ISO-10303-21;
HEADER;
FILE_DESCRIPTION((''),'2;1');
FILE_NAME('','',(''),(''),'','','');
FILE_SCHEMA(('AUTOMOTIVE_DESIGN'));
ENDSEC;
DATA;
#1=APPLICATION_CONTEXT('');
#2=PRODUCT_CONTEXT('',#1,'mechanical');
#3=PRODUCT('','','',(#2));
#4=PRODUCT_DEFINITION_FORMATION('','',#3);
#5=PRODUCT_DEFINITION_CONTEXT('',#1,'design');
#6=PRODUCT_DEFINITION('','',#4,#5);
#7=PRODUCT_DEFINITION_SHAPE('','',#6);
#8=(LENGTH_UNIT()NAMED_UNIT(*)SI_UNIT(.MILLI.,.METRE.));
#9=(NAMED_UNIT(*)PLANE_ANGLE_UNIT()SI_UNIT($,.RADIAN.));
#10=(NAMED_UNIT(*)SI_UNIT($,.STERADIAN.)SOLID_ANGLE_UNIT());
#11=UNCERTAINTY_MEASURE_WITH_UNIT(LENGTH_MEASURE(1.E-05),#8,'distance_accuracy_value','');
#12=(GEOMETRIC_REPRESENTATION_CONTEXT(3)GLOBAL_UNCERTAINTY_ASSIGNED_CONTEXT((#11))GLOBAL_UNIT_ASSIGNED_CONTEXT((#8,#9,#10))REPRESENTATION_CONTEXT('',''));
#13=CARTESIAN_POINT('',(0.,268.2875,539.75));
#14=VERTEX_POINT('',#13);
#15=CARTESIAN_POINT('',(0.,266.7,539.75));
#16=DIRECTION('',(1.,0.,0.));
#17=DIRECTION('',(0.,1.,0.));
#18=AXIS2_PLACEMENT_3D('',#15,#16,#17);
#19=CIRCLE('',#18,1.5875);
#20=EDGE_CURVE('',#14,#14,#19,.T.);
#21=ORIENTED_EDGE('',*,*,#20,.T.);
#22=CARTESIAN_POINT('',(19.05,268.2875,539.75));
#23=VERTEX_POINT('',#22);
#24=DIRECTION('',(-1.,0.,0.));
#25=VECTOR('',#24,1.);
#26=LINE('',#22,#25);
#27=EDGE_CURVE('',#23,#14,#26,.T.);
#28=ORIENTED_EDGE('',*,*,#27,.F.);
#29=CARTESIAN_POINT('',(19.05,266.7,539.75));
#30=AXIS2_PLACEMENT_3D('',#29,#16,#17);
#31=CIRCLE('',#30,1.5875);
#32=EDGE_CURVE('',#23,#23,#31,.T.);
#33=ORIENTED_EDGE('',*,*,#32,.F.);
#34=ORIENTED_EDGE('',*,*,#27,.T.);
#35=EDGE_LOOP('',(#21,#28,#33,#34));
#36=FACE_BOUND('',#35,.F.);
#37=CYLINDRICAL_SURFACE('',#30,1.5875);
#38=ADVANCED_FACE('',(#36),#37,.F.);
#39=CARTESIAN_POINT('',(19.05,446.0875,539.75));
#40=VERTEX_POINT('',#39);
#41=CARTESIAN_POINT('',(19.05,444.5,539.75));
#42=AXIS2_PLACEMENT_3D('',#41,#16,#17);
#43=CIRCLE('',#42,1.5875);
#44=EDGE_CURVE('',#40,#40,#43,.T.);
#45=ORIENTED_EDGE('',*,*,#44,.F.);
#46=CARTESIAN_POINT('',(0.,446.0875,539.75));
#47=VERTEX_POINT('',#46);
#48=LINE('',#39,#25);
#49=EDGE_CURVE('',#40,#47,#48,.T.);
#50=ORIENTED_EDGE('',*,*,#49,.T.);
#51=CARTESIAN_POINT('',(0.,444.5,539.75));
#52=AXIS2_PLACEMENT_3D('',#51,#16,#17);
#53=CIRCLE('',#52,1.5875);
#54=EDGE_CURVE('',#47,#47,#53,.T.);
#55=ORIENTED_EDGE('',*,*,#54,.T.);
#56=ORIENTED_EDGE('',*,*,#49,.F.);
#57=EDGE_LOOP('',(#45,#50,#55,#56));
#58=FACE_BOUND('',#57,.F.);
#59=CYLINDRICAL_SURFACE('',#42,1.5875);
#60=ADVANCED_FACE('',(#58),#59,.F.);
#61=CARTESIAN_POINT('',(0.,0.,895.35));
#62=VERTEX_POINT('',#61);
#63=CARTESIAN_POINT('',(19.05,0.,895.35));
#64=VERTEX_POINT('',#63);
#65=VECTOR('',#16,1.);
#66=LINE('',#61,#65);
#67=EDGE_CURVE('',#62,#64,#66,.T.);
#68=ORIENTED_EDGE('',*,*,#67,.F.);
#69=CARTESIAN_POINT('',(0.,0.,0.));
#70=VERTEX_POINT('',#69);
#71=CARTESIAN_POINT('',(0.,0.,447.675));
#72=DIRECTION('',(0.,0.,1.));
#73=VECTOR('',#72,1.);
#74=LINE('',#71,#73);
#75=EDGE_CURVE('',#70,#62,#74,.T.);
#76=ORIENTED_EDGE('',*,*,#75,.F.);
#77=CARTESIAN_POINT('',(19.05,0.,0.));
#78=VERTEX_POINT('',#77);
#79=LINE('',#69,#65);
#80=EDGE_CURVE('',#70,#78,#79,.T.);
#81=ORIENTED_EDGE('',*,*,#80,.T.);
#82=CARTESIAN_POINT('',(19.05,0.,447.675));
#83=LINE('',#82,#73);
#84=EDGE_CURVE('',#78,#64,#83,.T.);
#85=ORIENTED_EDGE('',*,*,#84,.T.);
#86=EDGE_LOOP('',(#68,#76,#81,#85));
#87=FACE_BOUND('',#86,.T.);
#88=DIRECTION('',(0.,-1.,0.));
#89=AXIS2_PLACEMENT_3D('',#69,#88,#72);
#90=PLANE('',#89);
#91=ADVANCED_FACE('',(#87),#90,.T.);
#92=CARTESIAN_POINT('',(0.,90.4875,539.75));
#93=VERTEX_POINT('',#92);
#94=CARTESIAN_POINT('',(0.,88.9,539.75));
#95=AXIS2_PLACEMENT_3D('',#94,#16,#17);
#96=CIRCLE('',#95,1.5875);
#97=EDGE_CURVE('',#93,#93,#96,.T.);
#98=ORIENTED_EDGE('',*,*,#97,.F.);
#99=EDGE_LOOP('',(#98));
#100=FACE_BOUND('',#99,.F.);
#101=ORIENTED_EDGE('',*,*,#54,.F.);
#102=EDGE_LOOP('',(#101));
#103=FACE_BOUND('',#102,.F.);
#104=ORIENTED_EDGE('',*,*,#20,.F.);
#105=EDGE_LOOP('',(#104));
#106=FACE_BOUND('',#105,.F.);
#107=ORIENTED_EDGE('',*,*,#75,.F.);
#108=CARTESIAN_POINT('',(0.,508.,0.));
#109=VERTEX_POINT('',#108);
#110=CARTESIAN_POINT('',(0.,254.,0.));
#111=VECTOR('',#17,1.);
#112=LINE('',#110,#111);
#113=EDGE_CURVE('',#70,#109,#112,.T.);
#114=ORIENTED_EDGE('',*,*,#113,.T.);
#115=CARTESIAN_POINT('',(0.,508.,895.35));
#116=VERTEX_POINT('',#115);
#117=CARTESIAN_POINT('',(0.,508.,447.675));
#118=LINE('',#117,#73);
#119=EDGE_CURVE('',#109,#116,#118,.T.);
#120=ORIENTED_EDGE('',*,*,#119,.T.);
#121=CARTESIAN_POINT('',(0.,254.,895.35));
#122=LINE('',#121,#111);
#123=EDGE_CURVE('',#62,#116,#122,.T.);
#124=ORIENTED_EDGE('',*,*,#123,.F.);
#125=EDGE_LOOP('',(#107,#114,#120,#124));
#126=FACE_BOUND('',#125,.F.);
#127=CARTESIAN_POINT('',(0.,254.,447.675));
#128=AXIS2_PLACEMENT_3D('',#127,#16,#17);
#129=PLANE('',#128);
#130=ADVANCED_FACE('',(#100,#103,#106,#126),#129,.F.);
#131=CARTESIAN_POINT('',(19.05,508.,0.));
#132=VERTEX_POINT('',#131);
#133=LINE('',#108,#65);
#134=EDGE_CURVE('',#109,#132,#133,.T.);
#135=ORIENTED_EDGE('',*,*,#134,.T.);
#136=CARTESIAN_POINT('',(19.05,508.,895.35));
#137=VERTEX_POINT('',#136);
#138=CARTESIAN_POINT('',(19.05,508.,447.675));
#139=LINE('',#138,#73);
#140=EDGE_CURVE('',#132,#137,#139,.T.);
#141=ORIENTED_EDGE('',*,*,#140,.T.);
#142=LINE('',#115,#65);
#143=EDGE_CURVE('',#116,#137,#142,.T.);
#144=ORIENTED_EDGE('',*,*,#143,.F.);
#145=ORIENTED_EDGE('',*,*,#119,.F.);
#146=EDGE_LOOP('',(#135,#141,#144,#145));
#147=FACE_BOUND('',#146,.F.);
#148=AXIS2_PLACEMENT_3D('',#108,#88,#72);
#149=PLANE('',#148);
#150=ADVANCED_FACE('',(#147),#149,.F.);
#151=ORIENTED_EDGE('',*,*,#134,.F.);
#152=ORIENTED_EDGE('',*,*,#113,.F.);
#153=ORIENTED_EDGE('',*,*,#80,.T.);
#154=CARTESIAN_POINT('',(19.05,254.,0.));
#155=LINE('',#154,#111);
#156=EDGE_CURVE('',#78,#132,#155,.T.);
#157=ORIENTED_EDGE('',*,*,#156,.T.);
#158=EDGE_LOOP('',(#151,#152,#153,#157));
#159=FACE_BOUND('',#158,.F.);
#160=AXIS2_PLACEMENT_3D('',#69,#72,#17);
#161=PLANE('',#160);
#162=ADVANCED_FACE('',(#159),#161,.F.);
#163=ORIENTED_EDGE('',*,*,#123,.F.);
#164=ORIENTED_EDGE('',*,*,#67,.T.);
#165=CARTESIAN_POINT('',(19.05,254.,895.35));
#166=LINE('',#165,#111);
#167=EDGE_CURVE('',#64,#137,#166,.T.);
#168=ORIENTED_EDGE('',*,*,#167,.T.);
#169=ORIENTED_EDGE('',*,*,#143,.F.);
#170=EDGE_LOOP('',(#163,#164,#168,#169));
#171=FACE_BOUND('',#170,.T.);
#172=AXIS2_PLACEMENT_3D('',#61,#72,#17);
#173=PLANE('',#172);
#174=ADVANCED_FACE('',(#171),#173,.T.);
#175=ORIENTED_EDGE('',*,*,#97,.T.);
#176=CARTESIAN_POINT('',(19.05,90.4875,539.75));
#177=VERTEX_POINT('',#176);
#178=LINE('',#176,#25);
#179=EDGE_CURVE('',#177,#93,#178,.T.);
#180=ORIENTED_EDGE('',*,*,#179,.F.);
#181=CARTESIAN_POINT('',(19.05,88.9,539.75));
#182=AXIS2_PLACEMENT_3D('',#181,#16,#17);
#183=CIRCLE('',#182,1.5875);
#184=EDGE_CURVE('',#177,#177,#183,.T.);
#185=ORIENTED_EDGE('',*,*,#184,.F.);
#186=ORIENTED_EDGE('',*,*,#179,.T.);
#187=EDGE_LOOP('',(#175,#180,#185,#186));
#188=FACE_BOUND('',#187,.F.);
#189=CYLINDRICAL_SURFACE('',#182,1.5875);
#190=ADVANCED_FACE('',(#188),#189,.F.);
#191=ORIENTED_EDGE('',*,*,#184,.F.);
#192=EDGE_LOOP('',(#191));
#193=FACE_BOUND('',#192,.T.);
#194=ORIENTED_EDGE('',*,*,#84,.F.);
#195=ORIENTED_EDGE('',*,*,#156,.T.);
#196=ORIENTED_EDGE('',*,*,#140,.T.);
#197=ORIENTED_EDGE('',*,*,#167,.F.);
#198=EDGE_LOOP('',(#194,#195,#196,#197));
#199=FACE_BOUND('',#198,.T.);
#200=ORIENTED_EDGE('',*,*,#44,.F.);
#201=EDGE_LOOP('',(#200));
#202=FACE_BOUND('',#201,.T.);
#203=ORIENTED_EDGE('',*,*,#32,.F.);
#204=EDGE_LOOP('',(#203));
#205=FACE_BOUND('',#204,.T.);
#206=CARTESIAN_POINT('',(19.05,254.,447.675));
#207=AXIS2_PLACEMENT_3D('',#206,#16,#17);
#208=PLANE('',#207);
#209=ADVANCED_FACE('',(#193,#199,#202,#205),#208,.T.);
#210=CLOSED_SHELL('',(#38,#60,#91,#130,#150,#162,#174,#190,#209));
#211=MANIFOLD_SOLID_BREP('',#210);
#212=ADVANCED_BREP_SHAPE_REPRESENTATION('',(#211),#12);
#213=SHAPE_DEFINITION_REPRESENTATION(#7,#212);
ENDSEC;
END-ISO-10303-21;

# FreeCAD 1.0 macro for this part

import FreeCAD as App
import Part
import Sketcher
from FreeCAD import Vector
Q = App.Units.Quantity


def add_polygon(sketch, points):
    """Adds a closed chain of lines whose ends are joined by coincident constraints."""
    first, n = sketch.GeometryCount, len(points)
    for a, b in zip(points, points[1:] + points[:1]):
        sketch.addGeometry(Part.LineSegment(App.Vector(*a, 0), App.Vector(*b, 0)), False)
    for i in range(n):
        sketch.addConstraint(Sketcher.Constraint("Coincident", first + i, 2, first + (i + 1) % n, 1))

doc = App.newDocument("Part")
params = doc.addObject("Spreadsheet::Sheet", "Params")
for row, (alias, value) in enumerate([
    ("sketch1_width", "20 in"),
    ("sketch1_height", "35.25 in"),
    ("pad1_length", "0.75 in"),
    ("sketch2_diameter", "0.125 in"),
    ("pocket1_length", "1 in"),
], start=1):
    params.set(f"A{row}", alias)
    params.set(f"B{row}", "=" + value)
    params.setAlias(f"B{row}", alias)

body = doc.addObject("PartDesign::Body", "Body")

# Sketch on YZ plane
sketch1 = body.newObject("Sketcher::SketchObject", "Sketch")
sketch1.AttachmentSupport = (doc.getObject("YZ_Plane"), [""])
sketch1.MapMode = "FlatFace"
add_polygon(sketch1, [(0, 895), (0, 0), (508, 0), (508, 895)])  # lines 0-3
sketch1.addConstraint([
    Sketcher.Constraint("Vertical", 0),
    Sketcher.Constraint("Horizontal", 1),
    Sketcher.Constraint("Vertical", 2),
    Sketcher.Constraint("Horizontal", 3),
    Sketcher.Constraint("Coincident", 0, 2, -1, 1),
    Sketcher.Constraint("DistanceX", 1, 1, 1, 2, Q("20 in")),
    Sketcher.Constraint("DistanceY", 0, 2, 0, 1, Q("35.25 in")),
])
sketch1.setExpression("Constraints[9]", "Params.sketch1_width")
sketch1.setExpression("Constraints[10]", "Params.sketch1_height")
pad1 = body.newObject("PartDesign::Pad", "Pad")
pad1.Profile = sketch1
pad1.setExpression("Length", "Params.pad1_length")

# Sketch on YZ plane
sketch2 = body.newObject("Sketcher::SketchObject", "Sketch001")
sketch2.AttachmentSupport = (doc.getObject("YZ_Plane"), [""])
sketch2.MapMode = "FlatFace"
sketch2.AttachmentOffset = App.Placement(Vector(0, 0, 0.75 * 25.4), App.Rotation())
sketch2.addGeometry([
    Part.Circle(Vector(88.9, 539.8, 0), Vector(0, 0, 1), 1.6),
    Part.Circle(Vector(266.7, 539.8, 0), Vector(0, 0, 1), 1.6),
    Part.Circle(Vector(444.5, 539.8, 0), Vector(0, 0, 1), 1.6),
], False)
sketch2.addConstraint([
    Sketcher.Constraint("Equal", 0, 1),
    Sketcher.Constraint("Equal", 1, 2),
    Sketcher.Constraint("Horizontal", 0, 3, 1, 3),
    Sketcher.Constraint("Horizontal", 1, 3, 2, 3),
    Sketcher.Constraint("Diameter", 0, Q("0.125 in")),
    Sketcher.Constraint("DistanceX", 0, 3, 1, 3, Q("7 in")),
    Sketcher.Constraint("DistanceX", 1, 3, 2, 3, Q("7 in")),
    Sketcher.Constraint("DistanceX", -1, 1, 0, 3, Q("3.5 in")),
    Sketcher.Constraint("DistanceY", -1, 1, 0, 3, Q("21.25 in")),
])
sketch2.setExpression("Constraints[4]", "Params.sketch2_diameter")
pocket1 = body.newObject("PartDesign::Pocket", "Pocket")
pocket1.Profile = sketch2
pocket1.setExpression("Length", "Params.pocket1_length")

doc.recompute()
